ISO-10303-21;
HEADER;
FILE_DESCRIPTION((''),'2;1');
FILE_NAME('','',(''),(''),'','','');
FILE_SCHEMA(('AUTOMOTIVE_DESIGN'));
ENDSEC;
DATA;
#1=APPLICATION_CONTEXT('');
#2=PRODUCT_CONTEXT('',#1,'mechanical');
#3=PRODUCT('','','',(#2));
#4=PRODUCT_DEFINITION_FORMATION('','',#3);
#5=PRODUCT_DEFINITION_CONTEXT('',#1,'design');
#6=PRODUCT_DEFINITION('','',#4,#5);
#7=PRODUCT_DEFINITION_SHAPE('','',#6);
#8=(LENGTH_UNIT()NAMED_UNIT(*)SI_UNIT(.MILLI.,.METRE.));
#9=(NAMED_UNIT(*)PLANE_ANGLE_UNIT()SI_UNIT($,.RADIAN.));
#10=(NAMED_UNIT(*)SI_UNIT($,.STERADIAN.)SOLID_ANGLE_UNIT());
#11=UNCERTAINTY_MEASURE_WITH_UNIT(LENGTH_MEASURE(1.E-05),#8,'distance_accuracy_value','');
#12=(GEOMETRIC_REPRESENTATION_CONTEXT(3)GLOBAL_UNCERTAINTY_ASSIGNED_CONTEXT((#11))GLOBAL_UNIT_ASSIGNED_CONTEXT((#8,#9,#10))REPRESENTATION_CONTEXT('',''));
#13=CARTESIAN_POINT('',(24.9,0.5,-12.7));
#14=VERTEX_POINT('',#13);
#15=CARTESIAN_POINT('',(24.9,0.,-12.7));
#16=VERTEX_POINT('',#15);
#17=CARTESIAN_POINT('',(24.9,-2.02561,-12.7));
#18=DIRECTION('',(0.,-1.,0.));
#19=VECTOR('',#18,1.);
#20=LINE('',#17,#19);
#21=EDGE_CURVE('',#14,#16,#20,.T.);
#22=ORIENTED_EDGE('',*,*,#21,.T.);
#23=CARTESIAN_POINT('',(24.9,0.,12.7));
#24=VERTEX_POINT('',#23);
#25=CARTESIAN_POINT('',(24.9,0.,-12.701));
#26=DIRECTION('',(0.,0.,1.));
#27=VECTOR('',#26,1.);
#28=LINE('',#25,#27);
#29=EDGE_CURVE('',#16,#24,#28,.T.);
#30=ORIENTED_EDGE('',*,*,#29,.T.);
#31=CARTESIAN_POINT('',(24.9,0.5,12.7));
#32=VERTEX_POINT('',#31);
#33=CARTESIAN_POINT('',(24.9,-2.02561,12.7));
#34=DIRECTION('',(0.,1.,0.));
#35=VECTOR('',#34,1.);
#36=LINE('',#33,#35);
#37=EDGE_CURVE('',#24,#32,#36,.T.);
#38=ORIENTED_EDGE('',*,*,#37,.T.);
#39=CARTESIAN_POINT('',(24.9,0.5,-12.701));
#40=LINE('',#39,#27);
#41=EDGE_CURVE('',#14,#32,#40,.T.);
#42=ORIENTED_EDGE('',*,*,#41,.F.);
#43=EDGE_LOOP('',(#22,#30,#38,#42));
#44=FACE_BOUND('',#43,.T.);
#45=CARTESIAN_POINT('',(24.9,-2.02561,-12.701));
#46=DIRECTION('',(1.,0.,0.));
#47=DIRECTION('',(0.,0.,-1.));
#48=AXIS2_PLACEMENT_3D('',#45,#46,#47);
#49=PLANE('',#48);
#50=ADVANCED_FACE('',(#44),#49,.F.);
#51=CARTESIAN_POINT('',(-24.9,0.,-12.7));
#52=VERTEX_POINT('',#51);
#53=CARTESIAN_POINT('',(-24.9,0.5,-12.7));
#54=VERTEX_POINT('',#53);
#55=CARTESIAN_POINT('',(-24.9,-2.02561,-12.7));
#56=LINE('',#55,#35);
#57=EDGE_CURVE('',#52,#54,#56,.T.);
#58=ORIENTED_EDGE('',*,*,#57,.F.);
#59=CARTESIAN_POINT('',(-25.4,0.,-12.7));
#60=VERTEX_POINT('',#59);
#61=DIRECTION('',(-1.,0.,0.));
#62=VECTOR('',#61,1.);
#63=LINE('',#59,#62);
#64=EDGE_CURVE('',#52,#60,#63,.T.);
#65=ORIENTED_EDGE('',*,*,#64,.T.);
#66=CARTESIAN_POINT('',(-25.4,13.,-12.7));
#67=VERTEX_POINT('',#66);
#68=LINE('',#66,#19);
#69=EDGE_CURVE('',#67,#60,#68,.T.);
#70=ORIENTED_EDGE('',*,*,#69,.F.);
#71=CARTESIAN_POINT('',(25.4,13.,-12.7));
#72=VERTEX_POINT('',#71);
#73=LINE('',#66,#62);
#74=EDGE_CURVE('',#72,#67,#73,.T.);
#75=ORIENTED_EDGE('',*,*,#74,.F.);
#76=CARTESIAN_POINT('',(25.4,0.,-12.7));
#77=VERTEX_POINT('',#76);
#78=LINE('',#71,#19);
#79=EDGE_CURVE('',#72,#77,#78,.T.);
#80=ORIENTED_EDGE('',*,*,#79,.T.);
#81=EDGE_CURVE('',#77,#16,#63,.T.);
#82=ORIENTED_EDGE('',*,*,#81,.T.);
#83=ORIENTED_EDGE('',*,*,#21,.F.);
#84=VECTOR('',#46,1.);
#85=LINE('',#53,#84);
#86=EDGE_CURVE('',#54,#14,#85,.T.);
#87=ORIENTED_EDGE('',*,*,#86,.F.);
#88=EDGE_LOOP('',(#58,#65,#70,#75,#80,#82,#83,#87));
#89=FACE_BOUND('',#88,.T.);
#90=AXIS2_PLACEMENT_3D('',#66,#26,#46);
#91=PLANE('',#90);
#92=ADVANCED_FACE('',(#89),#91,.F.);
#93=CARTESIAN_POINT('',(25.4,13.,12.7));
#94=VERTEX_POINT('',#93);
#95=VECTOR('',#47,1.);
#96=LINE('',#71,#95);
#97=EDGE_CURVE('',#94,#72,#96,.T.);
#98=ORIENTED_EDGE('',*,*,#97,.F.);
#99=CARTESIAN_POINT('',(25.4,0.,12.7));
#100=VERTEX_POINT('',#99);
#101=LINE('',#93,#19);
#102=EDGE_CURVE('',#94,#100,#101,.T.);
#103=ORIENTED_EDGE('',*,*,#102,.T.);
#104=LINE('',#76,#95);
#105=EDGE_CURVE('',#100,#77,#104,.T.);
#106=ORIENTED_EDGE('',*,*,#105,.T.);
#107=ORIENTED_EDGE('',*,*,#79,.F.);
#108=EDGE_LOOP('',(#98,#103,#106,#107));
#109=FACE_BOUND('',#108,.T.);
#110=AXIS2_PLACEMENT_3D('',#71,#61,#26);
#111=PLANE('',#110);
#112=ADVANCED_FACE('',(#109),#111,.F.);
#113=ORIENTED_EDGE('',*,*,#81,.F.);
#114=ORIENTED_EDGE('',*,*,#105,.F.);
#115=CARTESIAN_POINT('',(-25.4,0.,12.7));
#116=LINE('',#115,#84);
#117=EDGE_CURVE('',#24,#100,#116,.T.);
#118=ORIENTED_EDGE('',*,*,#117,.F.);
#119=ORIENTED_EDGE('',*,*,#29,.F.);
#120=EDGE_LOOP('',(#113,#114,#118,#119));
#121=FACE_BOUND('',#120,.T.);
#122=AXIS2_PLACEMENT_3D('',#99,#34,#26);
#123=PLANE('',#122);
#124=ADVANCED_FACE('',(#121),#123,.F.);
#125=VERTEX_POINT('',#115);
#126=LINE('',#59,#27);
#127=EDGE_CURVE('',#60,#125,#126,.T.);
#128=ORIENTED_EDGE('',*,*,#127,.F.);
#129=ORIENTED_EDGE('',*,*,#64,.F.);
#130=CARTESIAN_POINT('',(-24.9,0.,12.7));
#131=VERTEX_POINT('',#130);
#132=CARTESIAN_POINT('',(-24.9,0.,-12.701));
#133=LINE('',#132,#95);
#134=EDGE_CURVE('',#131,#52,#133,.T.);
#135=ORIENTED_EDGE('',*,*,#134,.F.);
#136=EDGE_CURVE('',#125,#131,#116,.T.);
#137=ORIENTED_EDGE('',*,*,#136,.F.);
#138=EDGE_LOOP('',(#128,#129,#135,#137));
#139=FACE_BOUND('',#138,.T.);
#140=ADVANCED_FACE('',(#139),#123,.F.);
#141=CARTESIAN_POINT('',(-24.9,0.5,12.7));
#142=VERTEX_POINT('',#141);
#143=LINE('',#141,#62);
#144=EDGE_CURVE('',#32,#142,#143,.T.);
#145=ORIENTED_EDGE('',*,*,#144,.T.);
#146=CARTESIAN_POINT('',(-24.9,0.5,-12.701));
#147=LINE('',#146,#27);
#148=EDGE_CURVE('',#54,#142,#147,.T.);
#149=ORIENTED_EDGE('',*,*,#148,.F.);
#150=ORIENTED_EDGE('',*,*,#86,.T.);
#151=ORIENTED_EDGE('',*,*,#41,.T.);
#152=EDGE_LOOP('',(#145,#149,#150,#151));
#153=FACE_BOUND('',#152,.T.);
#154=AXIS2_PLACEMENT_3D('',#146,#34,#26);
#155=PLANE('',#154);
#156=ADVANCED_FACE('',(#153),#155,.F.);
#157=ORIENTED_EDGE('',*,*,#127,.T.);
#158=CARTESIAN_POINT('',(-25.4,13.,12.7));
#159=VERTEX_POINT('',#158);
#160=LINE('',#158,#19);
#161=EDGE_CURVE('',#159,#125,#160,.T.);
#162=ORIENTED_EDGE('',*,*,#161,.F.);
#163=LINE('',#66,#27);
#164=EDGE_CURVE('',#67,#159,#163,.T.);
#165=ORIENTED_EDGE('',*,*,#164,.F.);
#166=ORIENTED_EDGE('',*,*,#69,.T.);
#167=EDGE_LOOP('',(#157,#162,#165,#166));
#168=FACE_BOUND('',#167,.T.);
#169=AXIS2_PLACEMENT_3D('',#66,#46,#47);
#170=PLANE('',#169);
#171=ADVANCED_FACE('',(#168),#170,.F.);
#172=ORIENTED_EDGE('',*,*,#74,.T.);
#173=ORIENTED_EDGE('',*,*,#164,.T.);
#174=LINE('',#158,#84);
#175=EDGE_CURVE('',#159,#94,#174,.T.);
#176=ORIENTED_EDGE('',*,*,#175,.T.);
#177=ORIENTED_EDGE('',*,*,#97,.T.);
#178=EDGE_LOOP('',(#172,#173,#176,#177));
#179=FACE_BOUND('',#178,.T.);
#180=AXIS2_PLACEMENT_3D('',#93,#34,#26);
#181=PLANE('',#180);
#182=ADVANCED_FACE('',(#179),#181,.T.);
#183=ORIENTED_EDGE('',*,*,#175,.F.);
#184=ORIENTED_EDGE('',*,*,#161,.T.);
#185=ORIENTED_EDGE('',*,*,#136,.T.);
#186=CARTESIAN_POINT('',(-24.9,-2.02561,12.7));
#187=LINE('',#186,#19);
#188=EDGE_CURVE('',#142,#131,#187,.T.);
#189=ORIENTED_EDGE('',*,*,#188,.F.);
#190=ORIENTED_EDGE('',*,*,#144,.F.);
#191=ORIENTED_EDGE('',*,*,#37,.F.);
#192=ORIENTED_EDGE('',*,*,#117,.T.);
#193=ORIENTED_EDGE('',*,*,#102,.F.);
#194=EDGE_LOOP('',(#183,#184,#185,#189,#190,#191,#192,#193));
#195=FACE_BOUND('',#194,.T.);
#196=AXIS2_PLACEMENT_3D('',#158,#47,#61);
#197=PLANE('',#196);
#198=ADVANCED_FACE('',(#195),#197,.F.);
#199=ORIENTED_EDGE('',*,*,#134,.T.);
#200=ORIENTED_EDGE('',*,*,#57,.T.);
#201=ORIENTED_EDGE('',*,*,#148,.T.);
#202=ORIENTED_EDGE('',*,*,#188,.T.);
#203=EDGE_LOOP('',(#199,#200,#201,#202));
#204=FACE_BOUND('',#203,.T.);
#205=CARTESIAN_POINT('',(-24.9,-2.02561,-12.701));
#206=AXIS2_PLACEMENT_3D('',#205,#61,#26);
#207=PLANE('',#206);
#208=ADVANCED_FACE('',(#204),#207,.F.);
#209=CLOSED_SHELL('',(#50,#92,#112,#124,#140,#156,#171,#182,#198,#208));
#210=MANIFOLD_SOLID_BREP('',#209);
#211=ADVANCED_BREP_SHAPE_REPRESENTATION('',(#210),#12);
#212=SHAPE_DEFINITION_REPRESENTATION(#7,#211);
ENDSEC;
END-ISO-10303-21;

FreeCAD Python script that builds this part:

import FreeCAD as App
import Part
import Sketcher
Q = App.Units.Quantity


def add_polygon(sketch, points):
    """Adds a closed chain of lines whose ends are joined by coincident constraints."""
    first, n = sketch.GeometryCount, len(points)
    for a, b in zip(points, points[1:] + points[:1]):
        sketch.addGeometry(Part.LineSegment(App.Vector(*a, 0), App.Vector(*b, 0)), False)
    for i in range(n):
        sketch.addConstraint(Sketcher.Constraint("Coincident", first + i, 2, first + (i + 1) % n, 1))

doc = App.newDocument("Part")
params = doc.addObject("Spreadsheet::Sheet", "Params")
for row, (alias, value) in enumerate([
    ("sketch1_width", "50.8 mm"),
    ("sketch1_height", "25.4 mm"),
    ("pad1_length", "13 mm"),
    ("sketch2_width", "49.8 mm"),
    ("pocket1_length", "25.4 mm"),
], start=1):
    params.set(f"A{row}", alias)
    params.set(f"B{row}", "=" + value)
    params.setAlias(f"B{row}", alias)

body = doc.addObject("PartDesign::Body", "Body")

# Sketch on XZ plane
sketch1 = doc.addObject("Sketcher::SketchObject", "Sketch")
body.addObject(sketch1)
sketch1.AttachmentSupport = (doc.XZ_Plane, [""])
sketch1.MapMode = "FlatFace"
add_polygon(sketch1, [(-25, -13), (-25, 13), (25, 13), (25, -13)])  # lines 0-3
sketch1.addConstraint([
    Sketcher.Constraint("Vertical", 0),
    Sketcher.Constraint("Horizontal", 1),
    Sketcher.Constraint("Vertical", 2),
    Sketcher.Constraint("Horizontal", 3),
    Sketcher.Constraint("Symmetric", 0, 2, 2, 2, -1, 1),
    Sketcher.Constraint("DistanceX", 1, 1, 1, 2, Q("50.8 mm")),
    Sketcher.Constraint("DistanceY", 0, 1, 0, 2, Q("25.4 mm")),
])
sketch1.setExpression("Constraints[9]", "Params.sketch1_width")
sketch1.setExpression("Constraints[10]", "Params.sketch1_height")
pad1 = doc.addObject("PartDesign::Pad", "Pad")
body.addObject(pad1)
pad1.Profile = sketch1
pad1.setExpression("Length", "Params.pad1_length")
pad1.Reversed = True

# Sketch on XY plane
sketch2 = doc.addObject("Sketcher::SketchObject", "Sketch001")
body.addObject(sketch2)
sketch2.AttachmentSupport = (doc.XY_Plane, [""])
sketch2.MapMode = "FlatFace"
sketch2.AttachmentOffset = App.Placement(App.Vector(0, 0, 12.7), App.Rotation())
add_polygon(sketch2, [(-24.9, 0.5), (-24.9, -2), (24.9, -2), (24.9, 0.5)])  # lines 0-3
sketch2.addConstraint([
    Sketcher.Constraint("Vertical", 0),
    Sketcher.Constraint("Horizontal", 1),
    Sketcher.Constraint("Vertical", 2),
    Sketcher.Constraint("Horizontal", 3),
    Sketcher.Constraint("DistanceX", 1, 1, 1, 2, Q("49.8 mm")),
    Sketcher.Constraint("DistanceX", 0, 2, -1, 1, Q("24.9 mm")),
    Sketcher.Constraint("DistanceY", -1, 1, 2, 2, Q("0.5 mm")),
    Sketcher.Constraint("DistanceY", 0, 2, 0, 1, Q("2.52561 mm")),
])
sketch2.setExpression("Constraints[8]", "Params.sketch2_width")
pocket1 = doc.addObject("PartDesign::Pocket", "Pocket")
body.addObject(pocket1)
pocket1.Profile = sketch2
pocket1.setExpression("Length", "Params.pocket1_length")

doc.recompute()
